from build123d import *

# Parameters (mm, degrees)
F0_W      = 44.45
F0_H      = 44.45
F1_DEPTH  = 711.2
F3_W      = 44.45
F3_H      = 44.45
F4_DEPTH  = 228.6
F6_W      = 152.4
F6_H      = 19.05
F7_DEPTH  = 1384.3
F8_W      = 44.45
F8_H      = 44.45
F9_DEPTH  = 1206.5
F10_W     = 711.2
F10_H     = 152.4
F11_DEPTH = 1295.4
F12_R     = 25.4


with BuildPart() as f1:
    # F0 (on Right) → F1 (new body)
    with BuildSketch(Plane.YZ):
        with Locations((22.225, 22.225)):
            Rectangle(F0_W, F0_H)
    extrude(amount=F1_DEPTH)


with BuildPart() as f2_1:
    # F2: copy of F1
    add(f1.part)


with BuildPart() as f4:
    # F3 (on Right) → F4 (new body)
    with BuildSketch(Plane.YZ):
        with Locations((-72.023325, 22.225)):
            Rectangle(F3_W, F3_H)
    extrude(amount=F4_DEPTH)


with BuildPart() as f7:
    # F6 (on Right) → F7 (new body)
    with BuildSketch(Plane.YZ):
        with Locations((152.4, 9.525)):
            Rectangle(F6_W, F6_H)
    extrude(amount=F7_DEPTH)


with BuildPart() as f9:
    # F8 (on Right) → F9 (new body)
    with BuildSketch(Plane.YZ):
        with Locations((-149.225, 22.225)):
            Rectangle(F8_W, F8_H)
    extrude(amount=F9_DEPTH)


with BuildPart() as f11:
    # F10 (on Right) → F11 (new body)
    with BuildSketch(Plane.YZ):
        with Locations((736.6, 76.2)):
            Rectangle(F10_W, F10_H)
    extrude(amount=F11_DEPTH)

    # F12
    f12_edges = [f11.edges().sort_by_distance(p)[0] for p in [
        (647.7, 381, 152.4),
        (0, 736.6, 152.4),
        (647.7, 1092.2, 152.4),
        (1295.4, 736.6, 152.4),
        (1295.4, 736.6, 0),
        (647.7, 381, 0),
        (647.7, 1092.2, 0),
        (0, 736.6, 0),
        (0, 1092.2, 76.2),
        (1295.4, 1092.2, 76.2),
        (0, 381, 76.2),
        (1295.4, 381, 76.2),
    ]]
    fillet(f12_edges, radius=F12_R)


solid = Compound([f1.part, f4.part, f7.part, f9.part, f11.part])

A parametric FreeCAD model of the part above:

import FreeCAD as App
import Part
import Sketcher
from FreeCAD import Vector
Q = App.Units.Quantity


def add_polygon(sketch, points):
    """Adds a closed chain of lines whose ends are joined by coincident constraints."""
    first, n = sketch.GeometryCount, len(points)
    for a, b in zip(points, points[1:] + points[:1]):
        sketch.addGeometry(Part.LineSegment(App.Vector(*a, 0), App.Vector(*b, 0)), False)
    for i in range(n):
        sketch.addConstraint(Sketcher.Constraint("Coincident", first + i, 2, first + (i + 1) % n, 1))

doc = App.newDocument("Part")
body = doc.addObject("PartDesign::Body", "Body")

# Sketch on YZ plane
sketch1 = body.newObject("Sketcher::SketchObject", "Sketch")
sketch1.AttachmentSupport = (doc.getObject("YZ_Plane"), [""])
sketch1.MapMode = "FlatFace"
add_polygon(sketch1, [(0, 44), (0, 0), (44, 0), (44, 44)])  # lines 0-3
sketch1.addConstraint(Sketcher.Constraint("Vertical", 0))
sketch1.addConstraint(Sketcher.Constraint("Horizontal", 1))
sketch1.addConstraint(Sketcher.Constraint("Vertical", 2))
sketch1.addConstraint(Sketcher.Constraint("Horizontal", 3))
sketch1.addConstraint(Sketcher.Constraint("Coincident", 0, 2, -1, 1))
sketch1.addConstraint(Sketcher.Constraint("Equal", 3, 0))
sketch1.addConstraint(Sketcher.Constraint("DistanceX", 1, 1, 1, 2, Q("1.75 in")))
pad1 = body.newObject("PartDesign::Pad", "Pad")
pad1.Profile = sketch1
pad1.Length = Q("28 in")
body2 = doc.addObject("PartDesign::Body", "Body001")
doc.recompute()

body2.BaseFeature = body
doc.recompute()
body3 = doc.addObject("PartDesign::Body", "Body002")

# Sketch on YZ plane
sketch2 = body3.newObject("Sketcher::SketchObject", "Sketch001")
sketch2.AttachmentSupport = (doc.getObject("YZ_Plane002"), [""])
sketch2.MapMode = "FlatFace"
add_polygon(sketch2, [(-94, 44), (-94, 0), (-50, 0), (-50, 44)])  # lines 0-3
sketch2.addConstraint(Sketcher.Constraint("Vertical", 0))
sketch2.addConstraint(Sketcher.Constraint("Horizontal", 1))
sketch2.addConstraint(Sketcher.Constraint("Vertical", 2))
sketch2.addConstraint(Sketcher.Constraint("Horizontal", 3))
sketch2.addConstraint(Sketcher.Constraint("PointOnObject", 0, 2, -1))
sketch2.addConstraint(Sketcher.Constraint("Equal", 3, 0))
sketch2.addConstraint(Sketcher.Constraint("DistanceX", 1, 1, 1, 2, Q("1.75 in")))
sketch2.addConstraint(Sketcher.Constraint("DistanceX", 0, 2, -1, 1, Q("94.248325 mm")))
pad2 = body3.newObject("PartDesign::Pad", "Pad001")
pad2.Profile = sketch2
pad2.Length = Q("9 in")
body4 = doc.addObject("PartDesign::Body", "Body003")

# Sketch on YZ plane
sketch3 = body4.newObject("Sketcher::SketchObject", "Sketch002")
sketch3.AttachmentSupport = (doc.getObject("YZ_Plane003"), [""])
sketch3.MapMode = "FlatFace"
add_polygon(sketch3, [(76, 19), (76, 0), (229, 0), (229, 19)])  # lines 0-3
sketch3.addConstraint(Sketcher.Constraint("Vertical", 0))
sketch3.addConstraint(Sketcher.Constraint("Horizontal", 1))
sketch3.addConstraint(Sketcher.Constraint("Vertical", 2))
sketch3.addConstraint(Sketcher.Constraint("Horizontal", 3))
sketch3.addConstraint(Sketcher.Constraint("PointOnObject", 0, 2, -1))
sketch3.addConstraint(Sketcher.Constraint("DistanceX", 1, 1, 1, 2, Q("6 in")))
sketch3.addConstraint(Sketcher.Constraint("DistanceX", -1, 1, 0, 2, Q("3 in")))
sketch3.addConstraint(Sketcher.Constraint("DistanceY", 0, 2, 0, 1, Q("0.75 in")))
pad3 = body4.newObject("PartDesign::Pad", "Pad002")
pad3.Profile = sketch3
pad3.Length = Q("54.5 in")
body5 = doc.addObject("PartDesign::Body", "Body004")

# Sketch on YZ plane
sketch4 = body5.newObject("Sketcher::SketchObject", "Sketch003")
sketch4.AttachmentSupport = (doc.getObject("YZ_Plane004"), [""])
sketch4.MapMode = "FlatFace"
add_polygon(sketch4, [(-171, 44), (-171, 0), (-127, 0), (-127, 44)])  # lines 0-3
sketch4.addConstraint(Sketcher.Constraint("Vertical", 0))
sketch4.addConstraint(Sketcher.Constraint("Horizontal", 1))
sketch4.addConstraint(Sketcher.Constraint("Vertical", 2))
sketch4.addConstraint(Sketcher.Constraint("Horizontal", 3))
sketch4.addConstraint(Sketcher.Constraint("PointOnObject", 0, 2, -1))
sketch4.addConstraint(Sketcher.Constraint("Equal", 3, 0))
sketch4.addConstraint(Sketcher.Constraint("DistanceX", 1, 2, -1, 1, Q("5 in")))
sketch4.addConstraint(Sketcher.Constraint("DistanceX", 1, 1, 1, 2, Q("1.75 in")))
pad4 = body5.newObject("PartDesign::Pad", "Pad003")
pad4.Profile = sketch4
pad4.Length = Q("47.5 in")
body6 = doc.addObject("PartDesign::Body", "Body005")

# Sketch on YZ plane
sketch5 = body6.newObject("Sketcher::SketchObject", "Sketch004")
sketch5.AttachmentSupport = (doc.getObject("YZ_Plane005"), [""])
sketch5.MapMode = "FlatFace"
add_polygon(sketch5, [(381, 152), (381, 0), (1092, 0), (1092, 152)])  # lines 0-3
sketch5.addConstraint(Sketcher.Constraint("Vertical", 0))
sketch5.addConstraint(Sketcher.Constraint("Horizontal", 1))
sketch5.addConstraint(Sketcher.Constraint("Vertical", 2))
sketch5.addConstraint(Sketcher.Constraint("Horizontal", 3))
sketch5.addConstraint(Sketcher.Constraint("PointOnObject", 0, 2, -1))
sketch5.addConstraint(Sketcher.Constraint("DistanceX", 1, 1, 1, 2, Q("28 in")))
sketch5.addConstraint(Sketcher.Constraint("DistanceY", 0, 2, 0, 1, Q("6 in")))
sketch5.addConstraint(Sketcher.Constraint("DistanceX", -1, 1, 0, 2, Q("15 in")))
pad5 = body6.newObject("PartDesign::Pad", "Pad004")
pad5.Profile = sketch5
pad5.Length = Q("51 in")
doc.recompute()

fillet = body6.newObject("PartDesign::Fillet", "Fillet")
fillet.Base = (pad5, ["Edge1"])
fillet.UseAllEdges = True
fillet.Radius = Q("1 in")
body.Visibility = False

doc.recompute()
